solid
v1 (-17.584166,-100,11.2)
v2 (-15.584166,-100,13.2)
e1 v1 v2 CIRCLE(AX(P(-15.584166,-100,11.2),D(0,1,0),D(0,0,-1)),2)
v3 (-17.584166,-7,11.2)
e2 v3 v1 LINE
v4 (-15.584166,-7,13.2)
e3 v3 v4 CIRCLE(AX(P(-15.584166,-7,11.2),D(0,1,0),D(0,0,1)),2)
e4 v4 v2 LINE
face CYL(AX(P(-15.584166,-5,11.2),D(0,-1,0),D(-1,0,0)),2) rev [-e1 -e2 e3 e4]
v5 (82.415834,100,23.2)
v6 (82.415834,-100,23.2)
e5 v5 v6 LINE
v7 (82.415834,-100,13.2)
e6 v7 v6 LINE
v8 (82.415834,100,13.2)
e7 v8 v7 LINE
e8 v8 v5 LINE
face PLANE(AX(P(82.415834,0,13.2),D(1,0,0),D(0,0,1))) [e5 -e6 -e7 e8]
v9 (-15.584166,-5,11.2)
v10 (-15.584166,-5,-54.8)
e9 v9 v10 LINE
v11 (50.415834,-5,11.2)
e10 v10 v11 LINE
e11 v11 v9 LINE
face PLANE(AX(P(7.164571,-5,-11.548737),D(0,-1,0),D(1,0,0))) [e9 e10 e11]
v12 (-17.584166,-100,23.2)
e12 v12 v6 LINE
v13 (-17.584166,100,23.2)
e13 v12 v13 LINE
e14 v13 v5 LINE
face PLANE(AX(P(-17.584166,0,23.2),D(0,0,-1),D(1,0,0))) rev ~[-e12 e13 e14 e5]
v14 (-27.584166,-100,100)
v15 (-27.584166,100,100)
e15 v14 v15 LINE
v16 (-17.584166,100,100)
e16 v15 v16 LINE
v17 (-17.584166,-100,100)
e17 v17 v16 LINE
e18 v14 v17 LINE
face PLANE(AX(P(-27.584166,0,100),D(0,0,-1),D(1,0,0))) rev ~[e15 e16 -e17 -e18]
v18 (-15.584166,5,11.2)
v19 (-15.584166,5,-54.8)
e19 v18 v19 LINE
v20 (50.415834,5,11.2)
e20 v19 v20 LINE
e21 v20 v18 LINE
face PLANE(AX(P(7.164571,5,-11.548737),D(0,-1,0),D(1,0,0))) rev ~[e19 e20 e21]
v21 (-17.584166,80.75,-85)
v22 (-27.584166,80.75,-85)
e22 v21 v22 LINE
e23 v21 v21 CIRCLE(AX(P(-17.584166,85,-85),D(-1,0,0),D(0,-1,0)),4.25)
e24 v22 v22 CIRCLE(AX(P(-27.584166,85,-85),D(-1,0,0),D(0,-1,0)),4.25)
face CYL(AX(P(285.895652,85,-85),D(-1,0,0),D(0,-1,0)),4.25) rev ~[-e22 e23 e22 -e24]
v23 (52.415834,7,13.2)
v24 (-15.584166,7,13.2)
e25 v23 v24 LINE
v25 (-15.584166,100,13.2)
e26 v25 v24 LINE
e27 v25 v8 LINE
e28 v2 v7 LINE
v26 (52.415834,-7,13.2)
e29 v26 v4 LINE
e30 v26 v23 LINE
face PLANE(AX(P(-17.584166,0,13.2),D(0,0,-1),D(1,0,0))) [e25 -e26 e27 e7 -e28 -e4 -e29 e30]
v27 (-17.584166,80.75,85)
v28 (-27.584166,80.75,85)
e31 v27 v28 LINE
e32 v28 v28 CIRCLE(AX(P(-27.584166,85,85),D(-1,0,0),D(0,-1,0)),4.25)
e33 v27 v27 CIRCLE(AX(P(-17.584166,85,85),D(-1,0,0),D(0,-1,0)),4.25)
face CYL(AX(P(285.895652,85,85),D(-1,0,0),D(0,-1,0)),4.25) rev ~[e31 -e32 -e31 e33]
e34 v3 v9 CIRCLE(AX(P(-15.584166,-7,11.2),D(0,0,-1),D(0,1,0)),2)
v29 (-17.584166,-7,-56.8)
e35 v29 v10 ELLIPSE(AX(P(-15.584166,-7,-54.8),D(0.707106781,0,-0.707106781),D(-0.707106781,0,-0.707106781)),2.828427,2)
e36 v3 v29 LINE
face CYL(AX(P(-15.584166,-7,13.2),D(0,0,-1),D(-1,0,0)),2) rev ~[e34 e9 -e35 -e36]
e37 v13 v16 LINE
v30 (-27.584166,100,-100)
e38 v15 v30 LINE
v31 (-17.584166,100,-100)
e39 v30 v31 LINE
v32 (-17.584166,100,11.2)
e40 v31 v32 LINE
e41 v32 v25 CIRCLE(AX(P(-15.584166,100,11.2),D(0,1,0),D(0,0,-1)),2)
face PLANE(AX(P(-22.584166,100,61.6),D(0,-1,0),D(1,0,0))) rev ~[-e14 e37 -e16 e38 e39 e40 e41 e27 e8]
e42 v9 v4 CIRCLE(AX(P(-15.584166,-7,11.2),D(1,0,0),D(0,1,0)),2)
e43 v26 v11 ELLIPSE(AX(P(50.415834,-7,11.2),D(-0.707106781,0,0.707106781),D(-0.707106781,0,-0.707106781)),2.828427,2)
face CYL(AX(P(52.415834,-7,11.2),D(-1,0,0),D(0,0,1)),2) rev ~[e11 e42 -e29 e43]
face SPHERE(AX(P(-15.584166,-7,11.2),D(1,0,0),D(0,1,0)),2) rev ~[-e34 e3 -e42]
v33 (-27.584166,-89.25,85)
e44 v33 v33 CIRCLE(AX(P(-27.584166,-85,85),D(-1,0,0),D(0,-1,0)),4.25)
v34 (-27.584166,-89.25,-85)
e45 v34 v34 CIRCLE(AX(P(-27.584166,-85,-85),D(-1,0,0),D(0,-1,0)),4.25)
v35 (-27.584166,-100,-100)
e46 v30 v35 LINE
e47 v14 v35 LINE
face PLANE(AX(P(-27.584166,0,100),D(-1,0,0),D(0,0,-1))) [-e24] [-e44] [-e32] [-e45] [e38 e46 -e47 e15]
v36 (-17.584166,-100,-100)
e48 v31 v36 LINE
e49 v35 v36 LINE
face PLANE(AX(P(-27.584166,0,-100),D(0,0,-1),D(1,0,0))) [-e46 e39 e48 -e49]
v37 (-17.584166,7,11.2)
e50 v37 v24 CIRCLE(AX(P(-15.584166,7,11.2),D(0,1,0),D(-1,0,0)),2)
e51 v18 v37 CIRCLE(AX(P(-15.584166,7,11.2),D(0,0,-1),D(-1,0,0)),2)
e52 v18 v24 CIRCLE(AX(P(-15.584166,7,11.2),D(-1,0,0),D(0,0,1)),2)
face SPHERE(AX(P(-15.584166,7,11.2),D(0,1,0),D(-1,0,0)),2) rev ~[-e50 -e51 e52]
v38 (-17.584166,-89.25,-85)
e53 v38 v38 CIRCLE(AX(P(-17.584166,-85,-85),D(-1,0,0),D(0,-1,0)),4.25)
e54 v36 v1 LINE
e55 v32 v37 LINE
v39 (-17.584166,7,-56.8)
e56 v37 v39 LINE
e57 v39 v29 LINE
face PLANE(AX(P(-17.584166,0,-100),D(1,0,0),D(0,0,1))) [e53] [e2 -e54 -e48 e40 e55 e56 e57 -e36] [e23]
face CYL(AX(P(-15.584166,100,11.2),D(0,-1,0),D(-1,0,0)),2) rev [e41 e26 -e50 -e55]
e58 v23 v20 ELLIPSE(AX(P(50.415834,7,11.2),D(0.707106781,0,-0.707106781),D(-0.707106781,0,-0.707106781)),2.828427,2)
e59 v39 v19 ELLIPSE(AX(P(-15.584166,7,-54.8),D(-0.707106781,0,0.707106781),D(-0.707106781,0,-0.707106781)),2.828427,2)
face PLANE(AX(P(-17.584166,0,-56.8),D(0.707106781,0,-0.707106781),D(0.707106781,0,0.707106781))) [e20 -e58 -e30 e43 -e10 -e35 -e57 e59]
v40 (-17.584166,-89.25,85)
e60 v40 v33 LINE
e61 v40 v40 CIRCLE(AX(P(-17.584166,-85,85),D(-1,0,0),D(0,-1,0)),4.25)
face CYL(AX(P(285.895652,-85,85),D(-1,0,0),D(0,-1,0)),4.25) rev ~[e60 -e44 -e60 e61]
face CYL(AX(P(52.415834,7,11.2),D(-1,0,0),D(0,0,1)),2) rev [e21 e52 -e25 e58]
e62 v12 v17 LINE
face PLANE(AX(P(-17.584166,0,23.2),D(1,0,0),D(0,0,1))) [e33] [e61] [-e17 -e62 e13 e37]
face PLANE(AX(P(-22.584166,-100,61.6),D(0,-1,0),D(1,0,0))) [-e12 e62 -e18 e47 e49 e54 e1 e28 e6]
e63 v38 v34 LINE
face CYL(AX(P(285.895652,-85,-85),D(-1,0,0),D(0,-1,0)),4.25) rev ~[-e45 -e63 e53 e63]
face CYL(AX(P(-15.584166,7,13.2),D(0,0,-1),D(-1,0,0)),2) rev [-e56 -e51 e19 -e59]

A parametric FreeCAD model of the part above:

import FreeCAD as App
import Part
import Sketcher

V = App.Vector
Q = App.Units.Quantity


def edges_at(feature, points):
    """Names of the edges that pass closest to the given points."""
    edges = feature.Shape.Edges
    near = lambda p: min(range(len(edges)), key=lambda i: edges[i].distToShape(Part.Vertex(*p))[0])
    return sorted({f"Edge{near(p) + 1}" for p in points})

doc = App.newDocument("Part")
body = doc.addObject("PartDesign::Body", "Body")

# Sketch on XZ plane
sketch1 = body.newObject("Sketcher::SketchObject", "Sketch")
sketch1.AttachmentSupport = (doc.getObject("XZ_Plane"), [""])
sketch1.MapMode = "FlatFace"
sketch1.addGeometry([
    Part.LineSegment(V(-28, 100, 0), V(-28, -100, 0)),  # 0
    Part.LineSegment(V(-28, -100, 0), V(-18, -100, 0)),  # 1
    Part.LineSegment(V(-18, -100, 0), V(-18, 13, 0)),  # 2
    Part.LineSegment(V(-18, 13, 0), V(82, 13, 0)),  # 3
    Part.LineSegment(V(82, 13, 0), V(82, 23, 0)),  # 4
    Part.LineSegment(V(82, 23, 0), V(-18, 23, 0)),  # 5
    Part.LineSegment(V(-18, 23, 0), V(-18, 100, 0)),  # 6
    Part.LineSegment(V(-18, 100, 0), V(-28, 100, 0)),  # 7
], False)
sketch1.addConstraint([
    Sketcher.Constraint("Coincident", 0, 2, 1, 1),
    Sketcher.Constraint("Coincident", 1, 2, 2, 1),
    Sketcher.Constraint("Coincident", 2, 2, 3, 1),
    Sketcher.Constraint("Coincident", 3, 2, 4, 1),
    Sketcher.Constraint("Coincident", 4, 2, 5, 1),
    Sketcher.Constraint("Coincident", 5, 2, 6, 1),
    Sketcher.Constraint("Coincident", 6, 2, 7, 1),
    Sketcher.Constraint("Coincident", 7, 2, 0, 1),
    Sketcher.Constraint("Vertical", 0),
    Sketcher.Constraint("Horizontal", 1),
    Sketcher.Constraint("Vertical", 2),
    Sketcher.Constraint("Horizontal", 3),
    Sketcher.Constraint("Vertical", 4),
    Sketcher.Constraint("Horizontal", 5),
    Sketcher.Constraint("Vertical", 6),
    Sketcher.Constraint("Horizontal", 7),
    Sketcher.Constraint("Symmetric", 1, 2, 6, 2, -1),
    Sketcher.Constraint("Equal", 7, 4),
    Sketcher.Constraint("DistanceX", 1, 1, 1, 2, Q("10 mm")),
    Sketcher.Constraint("DistanceX", 3, 1, 3, 2, Q("100 mm")),
    Sketcher.Constraint("DistanceY", 0, 2, 0, 1, Q("200 mm")),
    Sketcher.Constraint("DistanceY", 2, 1, 2, 2, Q("113.2 mm")),
    Sketcher.Constraint("DistanceX", 0, 2, -1, 1, Q("27.584166 mm")),
])
pad1 = body.newObject("PartDesign::Pad", "Pad")
pad1.Profile = sketch1
pad1.Length = 200
pad1.Midplane = True

# Sketch on XZ plane
sketch2 = body.newObject("Sketcher::SketchObject", "Sketch001")
sketch2.AttachmentSupport = (doc.getObject("XZ_Plane"), [""])
sketch2.MapMode = "FlatFace"
sketch2.addGeometry([
    Part.LineSegment(V(-18, 13, 0), V(-18, -57, 0)),
    Part.LineSegment(V(-18, -57, 0), V(52, 13, 0)),
    Part.LineSegment(V(52, 13, 0), V(-18, 13, 0)),
], False)
sketch2.addConstraint([
    Sketcher.Constraint("Coincident", 0, 2, 1, 1),
    Sketcher.Constraint("Coincident", 1, 2, 2, 1),
    Sketcher.Constraint("Coincident", 2, 2, 0, 1),
    Sketcher.Constraint("Vertical", 0),
    Sketcher.Constraint("Horizontal", 2),
    Sketcher.Constraint("Equal", 2, 0),
    Sketcher.Constraint("DistanceX", 2, 2, 2, 1, Q("70 mm")),
    Sketcher.Constraint("DistanceY", 0, 2, -1, 1, Q("56.8 mm")),
    Sketcher.Constraint("DistanceX", 0, 2, -1, 1, Q("17.584166 mm")),
])
pad2 = body.newObject("PartDesign::Pad", "Pad001")
pad2.Profile = sketch2
pad2.Length = 10
pad2.Midplane = True
doc.recompute()

fillet = body.newObject("PartDesign::Fillet", "Fillet")
fillet.Base = (pad2, edges_at(pad2, [
    (17.416, -5, 13.2),
    (-17.584, -5, -21.8),
    (-17.584, -52.5, 13.2),
    (-17.584, 52.5, 13.2),
    (-17.584, 5, -21.8),
    (17.416, 5, 13.2),
]))
fillet.Radius = 2

# Sketch on YZ plane
sketch3 = body.newObject("Sketcher::SketchObject", "Sketch002")
sketch3.AttachmentSupport = (doc.getObject("YZ_Plane"), [""])
sketch3.MapMode = "FlatFace"
sketch3.AttachmentOffset = App.Placement(V(0, 0, -17.584166), App.Rotation())
sketch3.addGeometry([
    Part.Circle(V(-85, 85, 0), V(0, 0, 1), 4.2),
    Part.Circle(V(85, 85, 0), V(0, 0, 1), 4.2),
    Part.Circle(V(85, -85, 0), V(0, 0, 1), 4.2),
    Part.Circle(V(-85, -85, 0), V(0, 0, 1), 4.2),
], False)
sketch3.addConstraint([
    Sketcher.Constraint("Equal", 0, 1),
    Sketcher.Constraint("Equal", 1, 2),
    Sketcher.Constraint("Equal", 2, 3),
    Sketcher.Constraint("Symmetric", 0, 3, 2, 3, -1, 1),
    Sketcher.Constraint("Symmetric", 1, 3, 3, 3, -1, 1),
    Sketcher.Constraint("Symmetric", 0, 3, 1, 3, -2),
    Sketcher.Constraint("Diameter", 0, Q("8.5 mm")),
    Sketcher.Constraint("DistanceX", 0, 3, -1, 1, Q("85 mm")),
    Sketcher.Constraint("DistanceY", -1, 1, 0, 3, Q("85 mm")),
])
doc.recompute()
hole = body.newObject("PartDesign::Hole", "Hole")
hole.Profile = sketch3
hole.ThreadType = "None"
hole.Diameter = 8.5
hole.DepthType = "ThroughAll"

doc.recompute()
